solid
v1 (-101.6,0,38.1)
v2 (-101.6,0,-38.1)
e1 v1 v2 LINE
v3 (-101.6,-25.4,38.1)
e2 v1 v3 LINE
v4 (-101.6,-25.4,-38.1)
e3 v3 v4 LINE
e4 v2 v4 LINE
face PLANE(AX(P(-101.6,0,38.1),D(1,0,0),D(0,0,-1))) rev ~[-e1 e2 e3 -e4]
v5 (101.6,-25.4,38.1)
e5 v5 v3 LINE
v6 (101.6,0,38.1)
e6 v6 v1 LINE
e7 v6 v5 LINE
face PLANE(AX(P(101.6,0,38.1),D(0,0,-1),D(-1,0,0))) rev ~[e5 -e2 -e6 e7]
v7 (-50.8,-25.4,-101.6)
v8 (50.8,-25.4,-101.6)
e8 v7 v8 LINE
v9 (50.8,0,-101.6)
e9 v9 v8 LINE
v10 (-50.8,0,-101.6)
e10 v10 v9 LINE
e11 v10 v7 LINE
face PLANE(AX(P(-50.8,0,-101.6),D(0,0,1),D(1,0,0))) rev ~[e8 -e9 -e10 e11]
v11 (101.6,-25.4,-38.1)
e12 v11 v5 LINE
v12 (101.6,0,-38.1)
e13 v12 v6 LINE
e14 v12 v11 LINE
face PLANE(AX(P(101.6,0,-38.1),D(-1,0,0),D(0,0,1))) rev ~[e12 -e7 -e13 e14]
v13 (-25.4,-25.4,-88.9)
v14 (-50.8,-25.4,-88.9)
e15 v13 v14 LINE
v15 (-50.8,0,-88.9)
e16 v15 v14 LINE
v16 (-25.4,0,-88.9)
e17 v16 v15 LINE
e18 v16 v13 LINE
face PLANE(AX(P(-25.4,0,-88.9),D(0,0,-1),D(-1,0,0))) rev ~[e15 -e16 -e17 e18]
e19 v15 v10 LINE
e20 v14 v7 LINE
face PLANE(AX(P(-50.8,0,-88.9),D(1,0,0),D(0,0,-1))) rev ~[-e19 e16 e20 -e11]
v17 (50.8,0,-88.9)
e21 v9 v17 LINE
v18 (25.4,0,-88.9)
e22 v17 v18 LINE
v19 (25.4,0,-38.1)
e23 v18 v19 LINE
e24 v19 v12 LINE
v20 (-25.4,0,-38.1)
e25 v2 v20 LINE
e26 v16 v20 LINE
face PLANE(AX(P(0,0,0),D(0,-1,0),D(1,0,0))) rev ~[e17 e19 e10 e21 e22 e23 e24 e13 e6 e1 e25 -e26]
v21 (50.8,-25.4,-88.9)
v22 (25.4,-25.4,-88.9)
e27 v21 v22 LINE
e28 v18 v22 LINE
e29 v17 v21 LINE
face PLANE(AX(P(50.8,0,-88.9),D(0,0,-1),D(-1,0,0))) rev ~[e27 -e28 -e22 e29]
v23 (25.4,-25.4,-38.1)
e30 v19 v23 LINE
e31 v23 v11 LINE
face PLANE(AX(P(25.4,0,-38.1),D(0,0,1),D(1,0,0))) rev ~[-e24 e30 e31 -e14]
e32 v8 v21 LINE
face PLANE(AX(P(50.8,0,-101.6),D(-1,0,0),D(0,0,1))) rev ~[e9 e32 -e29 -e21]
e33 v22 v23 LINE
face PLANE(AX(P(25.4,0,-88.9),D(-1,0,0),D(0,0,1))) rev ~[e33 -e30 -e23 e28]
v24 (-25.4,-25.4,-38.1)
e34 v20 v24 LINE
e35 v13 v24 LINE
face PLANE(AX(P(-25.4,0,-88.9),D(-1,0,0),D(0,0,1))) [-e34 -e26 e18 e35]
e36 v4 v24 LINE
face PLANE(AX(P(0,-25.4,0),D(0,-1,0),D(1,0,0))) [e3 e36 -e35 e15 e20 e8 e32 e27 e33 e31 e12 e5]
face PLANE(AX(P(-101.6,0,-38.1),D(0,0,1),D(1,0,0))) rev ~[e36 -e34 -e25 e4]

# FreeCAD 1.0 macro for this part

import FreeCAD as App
import Part
import Sketcher

V = App.Vector
Q = App.Units.Quantity


def add_polygon(sketch, points):
    """Adds a closed chain of lines whose ends are joined by coincident constraints."""
    first, n = sketch.GeometryCount, len(points)
    for a, b in zip(points, points[1:] + points[:1]):
        sketch.addGeometry(Part.LineSegment(App.Vector(*a, 0), App.Vector(*b, 0)), False)
    for i in range(n):
        sketch.addConstraint(Sketcher.Constraint("Coincident", first + i, 2, first + (i + 1) % n, 1))

doc = App.newDocument("Part")
params = doc.addObject("Spreadsheet::Sheet", "Params")
for row, (alias, value) in enumerate([
    ("sketch1_width", "8 in"),
    ("sketch1_width2", "3 in"),
    ("sketch1_width3", "1 in"),
    ("sketch1_height", "2 in"),
    ("sketch1_height2", "0.5 in"),
    ("pad1_length", "1 in"),
], start=1):
    params.set(f"A{row}", alias)
    params.set(f"B{row}", "=" + value)
    params.setAlias(f"B{row}", alias)

body = doc.addObject("PartDesign::Body", "Body")

# Sketch on XZ plane
sketch1 = doc.addObject("Sketcher::SketchObject", "Sketch")
body.addObject(sketch1)
sketch1.AttachmentSupport = (doc.XZ_Plane, [""])
sketch1.MapMode = "FlatFace"
add_polygon(sketch1, [(102, 38), (-102, 38), (-102, -38), (-25, -38), (-25, -89), (-51, -89), (-51, -102), (51, -102), (51, -89), (25, -89), (25, -38), (102, -38)])  # lines 0-11
sketch1.addConstraint([
    Sketcher.Constraint("Horizontal", 0),
    Sketcher.Constraint("Vertical", 1),
    Sketcher.Constraint("Horizontal", 2),
    Sketcher.Constraint("Vertical", 3),
    Sketcher.Constraint("Horizontal", 4),
    Sketcher.Constraint("Vertical", 5),
    Sketcher.Constraint("Horizontal", 6),
    Sketcher.Constraint("Vertical", 7),
    Sketcher.Constraint("Horizontal", 8),
    Sketcher.Constraint("Vertical", 9),
    Sketcher.Constraint("Horizontal", 10),
    Sketcher.Constraint("Vertical", 11),
    Sketcher.Constraint("Symmetric", 0, 2, 10, 2, -1, 1),
    Sketcher.Constraint("Symmetric", 4, 2, 7, 2, -2),
    Sketcher.Constraint("Symmetric", 2, 2, 9, 2, -2),
    Sketcher.Constraint("Equal", 10, 1),
    Sketcher.Constraint("DistanceX", 0, 2, 0, 1, Q("8 in")),
    Sketcher.Constraint("DistanceX", 2, 1, 2, 2, Q("3 in")),
    Sketcher.Constraint("DistanceX", 4, 2, 4, 1, Q("1 in")),
    Sketcher.Constraint("DistanceY", 3, 2, 3, 1, Q("2 in")),
    Sketcher.Constraint("DistanceY", 5, 2, 5, 1, Q("0.5 in")),
])
sketch1.setExpression("Constraints[28]", "Params.sketch1_width")
sketch1.setExpression("Constraints[29]", "Params.sketch1_width2")
sketch1.setExpression("Constraints[30]", "Params.sketch1_width3")
sketch1.setExpression("Constraints[31]", "Params.sketch1_height")
sketch1.setExpression("Constraints[32]", "Params.sketch1_height2")
pad1 = doc.addObject("PartDesign::Pad", "Pad")
body.addObject(pad1)
pad1.Profile = sketch1
pad1.setExpression("Length", "Params.pad1_length")

doc.recompute()
